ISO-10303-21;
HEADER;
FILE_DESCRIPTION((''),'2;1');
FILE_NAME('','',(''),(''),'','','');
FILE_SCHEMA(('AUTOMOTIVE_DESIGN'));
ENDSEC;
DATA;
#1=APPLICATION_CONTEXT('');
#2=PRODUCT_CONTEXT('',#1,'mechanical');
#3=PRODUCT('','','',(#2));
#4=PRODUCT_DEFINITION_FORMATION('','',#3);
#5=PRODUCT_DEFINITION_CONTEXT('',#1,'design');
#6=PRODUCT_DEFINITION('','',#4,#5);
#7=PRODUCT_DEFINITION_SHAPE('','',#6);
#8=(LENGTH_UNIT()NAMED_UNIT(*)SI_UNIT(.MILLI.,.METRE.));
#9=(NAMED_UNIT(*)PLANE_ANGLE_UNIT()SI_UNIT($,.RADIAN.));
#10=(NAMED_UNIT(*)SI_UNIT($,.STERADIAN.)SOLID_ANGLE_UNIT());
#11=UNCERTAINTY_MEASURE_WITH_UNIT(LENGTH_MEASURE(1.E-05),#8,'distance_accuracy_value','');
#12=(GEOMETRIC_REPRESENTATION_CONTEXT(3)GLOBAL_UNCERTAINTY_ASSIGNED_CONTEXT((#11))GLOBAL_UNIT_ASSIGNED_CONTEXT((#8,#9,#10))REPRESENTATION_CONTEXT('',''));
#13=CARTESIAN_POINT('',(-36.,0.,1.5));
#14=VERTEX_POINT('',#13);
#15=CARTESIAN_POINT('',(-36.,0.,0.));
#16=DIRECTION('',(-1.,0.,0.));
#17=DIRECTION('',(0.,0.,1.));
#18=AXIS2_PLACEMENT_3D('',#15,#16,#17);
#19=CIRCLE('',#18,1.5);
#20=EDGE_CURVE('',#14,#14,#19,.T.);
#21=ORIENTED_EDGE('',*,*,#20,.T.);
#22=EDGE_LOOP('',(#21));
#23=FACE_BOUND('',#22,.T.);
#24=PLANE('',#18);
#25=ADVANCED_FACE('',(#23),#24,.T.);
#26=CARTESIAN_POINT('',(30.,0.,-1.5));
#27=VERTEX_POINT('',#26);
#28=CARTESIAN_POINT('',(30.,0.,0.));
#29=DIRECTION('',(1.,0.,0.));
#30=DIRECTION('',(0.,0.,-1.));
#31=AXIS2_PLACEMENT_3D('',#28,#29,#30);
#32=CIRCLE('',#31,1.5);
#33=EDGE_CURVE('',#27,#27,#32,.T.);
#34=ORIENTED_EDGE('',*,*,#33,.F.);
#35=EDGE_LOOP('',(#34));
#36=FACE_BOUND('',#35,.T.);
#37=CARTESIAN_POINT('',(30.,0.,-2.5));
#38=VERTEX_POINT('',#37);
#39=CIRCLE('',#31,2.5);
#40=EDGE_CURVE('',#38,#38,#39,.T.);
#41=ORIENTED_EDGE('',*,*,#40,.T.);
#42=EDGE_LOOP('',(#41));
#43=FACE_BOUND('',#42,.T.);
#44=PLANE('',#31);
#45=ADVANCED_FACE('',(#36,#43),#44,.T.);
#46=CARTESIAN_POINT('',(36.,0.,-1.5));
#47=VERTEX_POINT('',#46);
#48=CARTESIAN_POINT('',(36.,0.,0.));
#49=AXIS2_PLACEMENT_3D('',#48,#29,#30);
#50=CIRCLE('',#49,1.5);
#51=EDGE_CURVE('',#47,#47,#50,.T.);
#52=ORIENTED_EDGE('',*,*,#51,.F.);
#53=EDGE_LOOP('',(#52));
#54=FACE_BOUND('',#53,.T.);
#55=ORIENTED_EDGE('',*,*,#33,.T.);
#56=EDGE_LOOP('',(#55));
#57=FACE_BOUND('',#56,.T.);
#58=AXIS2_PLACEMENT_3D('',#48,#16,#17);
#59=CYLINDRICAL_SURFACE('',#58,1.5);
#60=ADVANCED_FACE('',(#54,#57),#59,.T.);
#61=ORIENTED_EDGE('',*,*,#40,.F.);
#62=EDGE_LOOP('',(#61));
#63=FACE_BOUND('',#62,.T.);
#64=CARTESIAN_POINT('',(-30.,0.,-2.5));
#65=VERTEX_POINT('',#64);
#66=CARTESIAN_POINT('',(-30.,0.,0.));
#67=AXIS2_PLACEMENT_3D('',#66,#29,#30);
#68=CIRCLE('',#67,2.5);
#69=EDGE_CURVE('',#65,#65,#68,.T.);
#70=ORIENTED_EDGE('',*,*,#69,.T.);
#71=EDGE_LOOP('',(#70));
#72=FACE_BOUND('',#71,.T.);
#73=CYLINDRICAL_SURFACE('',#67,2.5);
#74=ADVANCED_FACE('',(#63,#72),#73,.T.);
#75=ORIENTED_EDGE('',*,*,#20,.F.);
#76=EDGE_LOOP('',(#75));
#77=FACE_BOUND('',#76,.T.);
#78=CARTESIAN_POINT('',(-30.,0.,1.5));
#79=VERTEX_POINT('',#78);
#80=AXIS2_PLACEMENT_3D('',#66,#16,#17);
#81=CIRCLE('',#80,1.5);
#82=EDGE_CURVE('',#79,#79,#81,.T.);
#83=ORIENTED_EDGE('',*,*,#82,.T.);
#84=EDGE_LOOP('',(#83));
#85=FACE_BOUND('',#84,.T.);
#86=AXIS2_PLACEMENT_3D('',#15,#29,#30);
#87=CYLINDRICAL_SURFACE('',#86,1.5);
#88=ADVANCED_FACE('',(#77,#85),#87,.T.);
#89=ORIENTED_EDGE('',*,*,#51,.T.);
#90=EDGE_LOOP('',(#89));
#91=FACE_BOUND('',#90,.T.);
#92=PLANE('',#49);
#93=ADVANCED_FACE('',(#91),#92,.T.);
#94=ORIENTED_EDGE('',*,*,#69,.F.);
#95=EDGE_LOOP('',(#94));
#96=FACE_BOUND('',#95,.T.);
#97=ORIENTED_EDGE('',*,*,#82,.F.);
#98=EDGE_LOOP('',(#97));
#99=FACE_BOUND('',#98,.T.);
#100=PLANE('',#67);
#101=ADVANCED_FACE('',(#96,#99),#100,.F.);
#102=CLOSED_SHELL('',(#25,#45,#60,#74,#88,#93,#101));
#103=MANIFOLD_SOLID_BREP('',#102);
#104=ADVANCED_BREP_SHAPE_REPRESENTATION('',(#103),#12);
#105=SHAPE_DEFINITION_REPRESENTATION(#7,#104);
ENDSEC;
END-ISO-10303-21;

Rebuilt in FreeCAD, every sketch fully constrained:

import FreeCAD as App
import Part
import Sketcher

V = App.Vector
Q = App.Units.Quantity

doc = App.newDocument("Part")
body = doc.addObject("PartDesign::Body", "Body")

# Sketch on YZ plane
sketch1 = doc.addObject("Sketcher::SketchObject", "Sketch")
body.addObject(sketch1)
sketch1.AttachmentSupport = (doc.YZ_Plane, [""])
sketch1.MapMode = "FlatFace"
sketch1.addGeometry(Part.Circle(V(0, 0, 0), V(0, 0, 1), 2.5), False)
sketch1.addConstraint([
    Sketcher.Constraint("Coincident", 0, 3, -1, 1),
    Sketcher.Constraint("Diameter", 0, Q("5 mm")),
])
pad1 = doc.addObject("PartDesign::Pad", "Pad")
body.addObject(pad1)
pad1.Profile = sketch1
pad1.Type = "TwoLengths"
pad1.Length = 30
pad1.Length2 = 30

# Sketch on YZ plane
sketch2 = doc.addObject("Sketcher::SketchObject", "Sketch001")
body.addObject(sketch2)
sketch2.AttachmentSupport = (doc.YZ_Plane, [""])
sketch2.MapMode = "FlatFace"
sketch2.AttachmentOffset = App.Placement(V(0, 0, 30), App.Rotation())
sketch2.addGeometry(Part.Circle(V(0, 0, 0), V(0, 0, 1), 1.5), False)
sketch2.addConstraint([
    Sketcher.Constraint("Coincident", 0, 3, -1, 1),
    Sketcher.Constraint("Diameter", 0, Q("3 mm")),
])
pad2 = doc.addObject("PartDesign::Pad", "Pad001")
body.addObject(pad2)
pad2.Profile = sketch2
pad2.Length = 6

# Sketch on YZ plane
sketch3 = doc.addObject("Sketcher::SketchObject", "Sketch002")
body.addObject(sketch3)
sketch3.AttachmentSupport = (doc.YZ_Plane, [""])
sketch3.MapMode = "FlatFace"
sketch3.AttachmentOffset = App.Placement(V(0, 0, -36), App.Rotation())
sketch3.addGeometry(Part.Circle(V(0, 0, 0), V(0, 0, 1), 1.5), False)
sketch3.addConstraint([
    Sketcher.Constraint("Coincident", 0, 3, -1, 1),
    Sketcher.Constraint("Diameter", 0, Q("3 mm")),
])
pad3 = doc.addObject("PartDesign::Pad", "Pad002")
body.addObject(pad3)
pad3.Profile = sketch3
pad3.Length = 6

doc.recompute()
